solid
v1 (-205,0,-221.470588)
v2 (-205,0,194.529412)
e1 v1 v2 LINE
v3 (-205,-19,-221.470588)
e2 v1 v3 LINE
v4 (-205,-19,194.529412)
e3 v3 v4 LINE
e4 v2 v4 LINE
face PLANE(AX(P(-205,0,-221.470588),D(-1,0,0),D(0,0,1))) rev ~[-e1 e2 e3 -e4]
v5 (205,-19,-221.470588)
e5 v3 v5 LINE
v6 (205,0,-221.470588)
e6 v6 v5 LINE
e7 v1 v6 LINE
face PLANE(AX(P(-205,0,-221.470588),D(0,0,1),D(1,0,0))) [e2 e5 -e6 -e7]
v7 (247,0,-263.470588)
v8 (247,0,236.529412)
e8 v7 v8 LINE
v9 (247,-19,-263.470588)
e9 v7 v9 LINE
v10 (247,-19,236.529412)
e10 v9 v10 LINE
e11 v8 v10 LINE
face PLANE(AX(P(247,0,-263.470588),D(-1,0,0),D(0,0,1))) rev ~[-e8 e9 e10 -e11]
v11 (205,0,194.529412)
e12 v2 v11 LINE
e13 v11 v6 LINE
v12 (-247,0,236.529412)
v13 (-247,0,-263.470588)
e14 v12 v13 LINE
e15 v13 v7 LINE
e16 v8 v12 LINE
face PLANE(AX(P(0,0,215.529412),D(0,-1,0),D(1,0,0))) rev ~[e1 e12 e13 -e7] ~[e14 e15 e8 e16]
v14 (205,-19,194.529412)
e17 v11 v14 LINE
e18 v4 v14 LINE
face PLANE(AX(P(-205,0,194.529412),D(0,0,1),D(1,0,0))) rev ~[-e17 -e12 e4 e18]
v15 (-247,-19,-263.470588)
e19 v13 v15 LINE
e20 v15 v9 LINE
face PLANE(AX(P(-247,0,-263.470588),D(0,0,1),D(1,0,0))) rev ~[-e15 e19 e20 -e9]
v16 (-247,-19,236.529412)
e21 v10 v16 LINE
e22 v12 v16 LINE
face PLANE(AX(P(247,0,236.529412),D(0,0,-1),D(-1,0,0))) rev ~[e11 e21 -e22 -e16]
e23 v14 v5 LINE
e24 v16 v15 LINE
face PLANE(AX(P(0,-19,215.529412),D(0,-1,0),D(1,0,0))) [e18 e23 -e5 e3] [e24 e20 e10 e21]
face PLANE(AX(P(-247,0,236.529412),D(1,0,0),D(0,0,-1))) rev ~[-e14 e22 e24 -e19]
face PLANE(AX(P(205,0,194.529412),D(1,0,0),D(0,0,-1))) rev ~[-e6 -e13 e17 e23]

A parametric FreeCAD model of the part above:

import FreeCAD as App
import Part
import Sketcher
from FreeCAD import Vector
Q = App.Units.Quantity

doc = App.newDocument("Part")
body = doc.addObject("PartDesign::Body", "Body")

# Sketch on XZ plane
sketch1 = doc.addObject("Sketcher::SketchObject", "Sketch")
body.addObject(sketch1)
sketch1.AttachmentSupport = (doc.XZ_Plane, [""])
sketch1.MapMode = "FlatFace"
sketch1.addGeometry(Part.LineSegment(Vector(247, -263, 0), Vector(247, 237, 0)), False)
sketch1.addGeometry(Part.LineSegment(Vector(247, 237, 0), Vector(-247, 237, 0)), False)
sketch1.addGeometry(Part.LineSegment(Vector(-247, 237, 0), Vector(-247, -263, 0)), False)
sketch1.addGeometry(Part.LineSegment(Vector(-247, -263, 0), Vector(247, -263, 0)), False)
sketch1.addGeometry(Part.LineSegment(Vector(-205, 195, 0), Vector(205, 195, 0)), False)
sketch1.addGeometry(Part.LineSegment(Vector(205, 195, 0), Vector(205, -221, 0)), False)
sketch1.addGeometry(Part.LineSegment(Vector(205, -221, 0), Vector(-205, -221, 0)), False)
sketch1.addGeometry(Part.LineSegment(Vector(-205, -221, 0), Vector(-205, 195, 0)), False)
sketch1.addConstraint(Sketcher.Constraint("Coincident", 0, 2, 1, 1))
sketch1.addConstraint(Sketcher.Constraint("Coincident", 1, 2, 2, 1))
sketch1.addConstraint(Sketcher.Constraint("Coincident", 2, 2, 3, 1))
sketch1.addConstraint(Sketcher.Constraint("Coincident", 3, 2, 0, 1))
sketch1.addConstraint(Sketcher.Constraint("Coincident", 4, 2, 5, 1))
sketch1.addConstraint(Sketcher.Constraint("Coincident", 5, 2, 6, 1))
sketch1.addConstraint(Sketcher.Constraint("Coincident", 6, 2, 7, 1))
sketch1.addConstraint(Sketcher.Constraint("Coincident", 7, 2, 4, 1))
sketch1.addConstraint(Sketcher.Constraint("Vertical", 0))
sketch1.addConstraint(Sketcher.Constraint("Horizontal", 1))
sketch1.addConstraint(Sketcher.Constraint("Vertical", 2))
sketch1.addConstraint(Sketcher.Constraint("Horizontal", 3))
sketch1.addConstraint(Sketcher.Constraint("Horizontal", 4))
sketch1.addConstraint(Sketcher.Constraint("Vertical", 5))
sketch1.addConstraint(Sketcher.Constraint("Horizontal", 6))
sketch1.addConstraint(Sketcher.Constraint("Vertical", 7))
sketch1.addConstraint(Sketcher.Constraint("DistanceX", 1, 2, 1, 1, Q("494 mm")))
sketch1.addConstraint(Sketcher.Constraint("DistanceX", 4, 1, 4, 2, Q("410 mm")))
sketch1.addConstraint(Sketcher.Constraint("DistanceY", 0, 1, 0, 2, Q("500 mm")))
sketch1.addConstraint(Sketcher.Constraint("DistanceY", 5, 2, 5, 1, Q("416 mm")))
sketch1.addConstraint(Sketcher.Constraint("DistanceX", -1, 1, 0, 2, Q("247 mm")))
sketch1.addConstraint(Sketcher.Constraint("DistanceX", -1, 1, 4, 2, Q("205 mm")))
sketch1.addConstraint(Sketcher.Constraint("DistanceY", 4, 2, 0, 2, Q("42 mm")))
sketch1.addConstraint(Sketcher.Constraint("DistanceY", -1, 1, 0, 2, Q("236.529412 mm")))
pad1 = doc.addObject("PartDesign::Pad", "Pad")
body.addObject(pad1)
pad1.Profile = sketch1
pad1.Length = 19

doc.recompute()
